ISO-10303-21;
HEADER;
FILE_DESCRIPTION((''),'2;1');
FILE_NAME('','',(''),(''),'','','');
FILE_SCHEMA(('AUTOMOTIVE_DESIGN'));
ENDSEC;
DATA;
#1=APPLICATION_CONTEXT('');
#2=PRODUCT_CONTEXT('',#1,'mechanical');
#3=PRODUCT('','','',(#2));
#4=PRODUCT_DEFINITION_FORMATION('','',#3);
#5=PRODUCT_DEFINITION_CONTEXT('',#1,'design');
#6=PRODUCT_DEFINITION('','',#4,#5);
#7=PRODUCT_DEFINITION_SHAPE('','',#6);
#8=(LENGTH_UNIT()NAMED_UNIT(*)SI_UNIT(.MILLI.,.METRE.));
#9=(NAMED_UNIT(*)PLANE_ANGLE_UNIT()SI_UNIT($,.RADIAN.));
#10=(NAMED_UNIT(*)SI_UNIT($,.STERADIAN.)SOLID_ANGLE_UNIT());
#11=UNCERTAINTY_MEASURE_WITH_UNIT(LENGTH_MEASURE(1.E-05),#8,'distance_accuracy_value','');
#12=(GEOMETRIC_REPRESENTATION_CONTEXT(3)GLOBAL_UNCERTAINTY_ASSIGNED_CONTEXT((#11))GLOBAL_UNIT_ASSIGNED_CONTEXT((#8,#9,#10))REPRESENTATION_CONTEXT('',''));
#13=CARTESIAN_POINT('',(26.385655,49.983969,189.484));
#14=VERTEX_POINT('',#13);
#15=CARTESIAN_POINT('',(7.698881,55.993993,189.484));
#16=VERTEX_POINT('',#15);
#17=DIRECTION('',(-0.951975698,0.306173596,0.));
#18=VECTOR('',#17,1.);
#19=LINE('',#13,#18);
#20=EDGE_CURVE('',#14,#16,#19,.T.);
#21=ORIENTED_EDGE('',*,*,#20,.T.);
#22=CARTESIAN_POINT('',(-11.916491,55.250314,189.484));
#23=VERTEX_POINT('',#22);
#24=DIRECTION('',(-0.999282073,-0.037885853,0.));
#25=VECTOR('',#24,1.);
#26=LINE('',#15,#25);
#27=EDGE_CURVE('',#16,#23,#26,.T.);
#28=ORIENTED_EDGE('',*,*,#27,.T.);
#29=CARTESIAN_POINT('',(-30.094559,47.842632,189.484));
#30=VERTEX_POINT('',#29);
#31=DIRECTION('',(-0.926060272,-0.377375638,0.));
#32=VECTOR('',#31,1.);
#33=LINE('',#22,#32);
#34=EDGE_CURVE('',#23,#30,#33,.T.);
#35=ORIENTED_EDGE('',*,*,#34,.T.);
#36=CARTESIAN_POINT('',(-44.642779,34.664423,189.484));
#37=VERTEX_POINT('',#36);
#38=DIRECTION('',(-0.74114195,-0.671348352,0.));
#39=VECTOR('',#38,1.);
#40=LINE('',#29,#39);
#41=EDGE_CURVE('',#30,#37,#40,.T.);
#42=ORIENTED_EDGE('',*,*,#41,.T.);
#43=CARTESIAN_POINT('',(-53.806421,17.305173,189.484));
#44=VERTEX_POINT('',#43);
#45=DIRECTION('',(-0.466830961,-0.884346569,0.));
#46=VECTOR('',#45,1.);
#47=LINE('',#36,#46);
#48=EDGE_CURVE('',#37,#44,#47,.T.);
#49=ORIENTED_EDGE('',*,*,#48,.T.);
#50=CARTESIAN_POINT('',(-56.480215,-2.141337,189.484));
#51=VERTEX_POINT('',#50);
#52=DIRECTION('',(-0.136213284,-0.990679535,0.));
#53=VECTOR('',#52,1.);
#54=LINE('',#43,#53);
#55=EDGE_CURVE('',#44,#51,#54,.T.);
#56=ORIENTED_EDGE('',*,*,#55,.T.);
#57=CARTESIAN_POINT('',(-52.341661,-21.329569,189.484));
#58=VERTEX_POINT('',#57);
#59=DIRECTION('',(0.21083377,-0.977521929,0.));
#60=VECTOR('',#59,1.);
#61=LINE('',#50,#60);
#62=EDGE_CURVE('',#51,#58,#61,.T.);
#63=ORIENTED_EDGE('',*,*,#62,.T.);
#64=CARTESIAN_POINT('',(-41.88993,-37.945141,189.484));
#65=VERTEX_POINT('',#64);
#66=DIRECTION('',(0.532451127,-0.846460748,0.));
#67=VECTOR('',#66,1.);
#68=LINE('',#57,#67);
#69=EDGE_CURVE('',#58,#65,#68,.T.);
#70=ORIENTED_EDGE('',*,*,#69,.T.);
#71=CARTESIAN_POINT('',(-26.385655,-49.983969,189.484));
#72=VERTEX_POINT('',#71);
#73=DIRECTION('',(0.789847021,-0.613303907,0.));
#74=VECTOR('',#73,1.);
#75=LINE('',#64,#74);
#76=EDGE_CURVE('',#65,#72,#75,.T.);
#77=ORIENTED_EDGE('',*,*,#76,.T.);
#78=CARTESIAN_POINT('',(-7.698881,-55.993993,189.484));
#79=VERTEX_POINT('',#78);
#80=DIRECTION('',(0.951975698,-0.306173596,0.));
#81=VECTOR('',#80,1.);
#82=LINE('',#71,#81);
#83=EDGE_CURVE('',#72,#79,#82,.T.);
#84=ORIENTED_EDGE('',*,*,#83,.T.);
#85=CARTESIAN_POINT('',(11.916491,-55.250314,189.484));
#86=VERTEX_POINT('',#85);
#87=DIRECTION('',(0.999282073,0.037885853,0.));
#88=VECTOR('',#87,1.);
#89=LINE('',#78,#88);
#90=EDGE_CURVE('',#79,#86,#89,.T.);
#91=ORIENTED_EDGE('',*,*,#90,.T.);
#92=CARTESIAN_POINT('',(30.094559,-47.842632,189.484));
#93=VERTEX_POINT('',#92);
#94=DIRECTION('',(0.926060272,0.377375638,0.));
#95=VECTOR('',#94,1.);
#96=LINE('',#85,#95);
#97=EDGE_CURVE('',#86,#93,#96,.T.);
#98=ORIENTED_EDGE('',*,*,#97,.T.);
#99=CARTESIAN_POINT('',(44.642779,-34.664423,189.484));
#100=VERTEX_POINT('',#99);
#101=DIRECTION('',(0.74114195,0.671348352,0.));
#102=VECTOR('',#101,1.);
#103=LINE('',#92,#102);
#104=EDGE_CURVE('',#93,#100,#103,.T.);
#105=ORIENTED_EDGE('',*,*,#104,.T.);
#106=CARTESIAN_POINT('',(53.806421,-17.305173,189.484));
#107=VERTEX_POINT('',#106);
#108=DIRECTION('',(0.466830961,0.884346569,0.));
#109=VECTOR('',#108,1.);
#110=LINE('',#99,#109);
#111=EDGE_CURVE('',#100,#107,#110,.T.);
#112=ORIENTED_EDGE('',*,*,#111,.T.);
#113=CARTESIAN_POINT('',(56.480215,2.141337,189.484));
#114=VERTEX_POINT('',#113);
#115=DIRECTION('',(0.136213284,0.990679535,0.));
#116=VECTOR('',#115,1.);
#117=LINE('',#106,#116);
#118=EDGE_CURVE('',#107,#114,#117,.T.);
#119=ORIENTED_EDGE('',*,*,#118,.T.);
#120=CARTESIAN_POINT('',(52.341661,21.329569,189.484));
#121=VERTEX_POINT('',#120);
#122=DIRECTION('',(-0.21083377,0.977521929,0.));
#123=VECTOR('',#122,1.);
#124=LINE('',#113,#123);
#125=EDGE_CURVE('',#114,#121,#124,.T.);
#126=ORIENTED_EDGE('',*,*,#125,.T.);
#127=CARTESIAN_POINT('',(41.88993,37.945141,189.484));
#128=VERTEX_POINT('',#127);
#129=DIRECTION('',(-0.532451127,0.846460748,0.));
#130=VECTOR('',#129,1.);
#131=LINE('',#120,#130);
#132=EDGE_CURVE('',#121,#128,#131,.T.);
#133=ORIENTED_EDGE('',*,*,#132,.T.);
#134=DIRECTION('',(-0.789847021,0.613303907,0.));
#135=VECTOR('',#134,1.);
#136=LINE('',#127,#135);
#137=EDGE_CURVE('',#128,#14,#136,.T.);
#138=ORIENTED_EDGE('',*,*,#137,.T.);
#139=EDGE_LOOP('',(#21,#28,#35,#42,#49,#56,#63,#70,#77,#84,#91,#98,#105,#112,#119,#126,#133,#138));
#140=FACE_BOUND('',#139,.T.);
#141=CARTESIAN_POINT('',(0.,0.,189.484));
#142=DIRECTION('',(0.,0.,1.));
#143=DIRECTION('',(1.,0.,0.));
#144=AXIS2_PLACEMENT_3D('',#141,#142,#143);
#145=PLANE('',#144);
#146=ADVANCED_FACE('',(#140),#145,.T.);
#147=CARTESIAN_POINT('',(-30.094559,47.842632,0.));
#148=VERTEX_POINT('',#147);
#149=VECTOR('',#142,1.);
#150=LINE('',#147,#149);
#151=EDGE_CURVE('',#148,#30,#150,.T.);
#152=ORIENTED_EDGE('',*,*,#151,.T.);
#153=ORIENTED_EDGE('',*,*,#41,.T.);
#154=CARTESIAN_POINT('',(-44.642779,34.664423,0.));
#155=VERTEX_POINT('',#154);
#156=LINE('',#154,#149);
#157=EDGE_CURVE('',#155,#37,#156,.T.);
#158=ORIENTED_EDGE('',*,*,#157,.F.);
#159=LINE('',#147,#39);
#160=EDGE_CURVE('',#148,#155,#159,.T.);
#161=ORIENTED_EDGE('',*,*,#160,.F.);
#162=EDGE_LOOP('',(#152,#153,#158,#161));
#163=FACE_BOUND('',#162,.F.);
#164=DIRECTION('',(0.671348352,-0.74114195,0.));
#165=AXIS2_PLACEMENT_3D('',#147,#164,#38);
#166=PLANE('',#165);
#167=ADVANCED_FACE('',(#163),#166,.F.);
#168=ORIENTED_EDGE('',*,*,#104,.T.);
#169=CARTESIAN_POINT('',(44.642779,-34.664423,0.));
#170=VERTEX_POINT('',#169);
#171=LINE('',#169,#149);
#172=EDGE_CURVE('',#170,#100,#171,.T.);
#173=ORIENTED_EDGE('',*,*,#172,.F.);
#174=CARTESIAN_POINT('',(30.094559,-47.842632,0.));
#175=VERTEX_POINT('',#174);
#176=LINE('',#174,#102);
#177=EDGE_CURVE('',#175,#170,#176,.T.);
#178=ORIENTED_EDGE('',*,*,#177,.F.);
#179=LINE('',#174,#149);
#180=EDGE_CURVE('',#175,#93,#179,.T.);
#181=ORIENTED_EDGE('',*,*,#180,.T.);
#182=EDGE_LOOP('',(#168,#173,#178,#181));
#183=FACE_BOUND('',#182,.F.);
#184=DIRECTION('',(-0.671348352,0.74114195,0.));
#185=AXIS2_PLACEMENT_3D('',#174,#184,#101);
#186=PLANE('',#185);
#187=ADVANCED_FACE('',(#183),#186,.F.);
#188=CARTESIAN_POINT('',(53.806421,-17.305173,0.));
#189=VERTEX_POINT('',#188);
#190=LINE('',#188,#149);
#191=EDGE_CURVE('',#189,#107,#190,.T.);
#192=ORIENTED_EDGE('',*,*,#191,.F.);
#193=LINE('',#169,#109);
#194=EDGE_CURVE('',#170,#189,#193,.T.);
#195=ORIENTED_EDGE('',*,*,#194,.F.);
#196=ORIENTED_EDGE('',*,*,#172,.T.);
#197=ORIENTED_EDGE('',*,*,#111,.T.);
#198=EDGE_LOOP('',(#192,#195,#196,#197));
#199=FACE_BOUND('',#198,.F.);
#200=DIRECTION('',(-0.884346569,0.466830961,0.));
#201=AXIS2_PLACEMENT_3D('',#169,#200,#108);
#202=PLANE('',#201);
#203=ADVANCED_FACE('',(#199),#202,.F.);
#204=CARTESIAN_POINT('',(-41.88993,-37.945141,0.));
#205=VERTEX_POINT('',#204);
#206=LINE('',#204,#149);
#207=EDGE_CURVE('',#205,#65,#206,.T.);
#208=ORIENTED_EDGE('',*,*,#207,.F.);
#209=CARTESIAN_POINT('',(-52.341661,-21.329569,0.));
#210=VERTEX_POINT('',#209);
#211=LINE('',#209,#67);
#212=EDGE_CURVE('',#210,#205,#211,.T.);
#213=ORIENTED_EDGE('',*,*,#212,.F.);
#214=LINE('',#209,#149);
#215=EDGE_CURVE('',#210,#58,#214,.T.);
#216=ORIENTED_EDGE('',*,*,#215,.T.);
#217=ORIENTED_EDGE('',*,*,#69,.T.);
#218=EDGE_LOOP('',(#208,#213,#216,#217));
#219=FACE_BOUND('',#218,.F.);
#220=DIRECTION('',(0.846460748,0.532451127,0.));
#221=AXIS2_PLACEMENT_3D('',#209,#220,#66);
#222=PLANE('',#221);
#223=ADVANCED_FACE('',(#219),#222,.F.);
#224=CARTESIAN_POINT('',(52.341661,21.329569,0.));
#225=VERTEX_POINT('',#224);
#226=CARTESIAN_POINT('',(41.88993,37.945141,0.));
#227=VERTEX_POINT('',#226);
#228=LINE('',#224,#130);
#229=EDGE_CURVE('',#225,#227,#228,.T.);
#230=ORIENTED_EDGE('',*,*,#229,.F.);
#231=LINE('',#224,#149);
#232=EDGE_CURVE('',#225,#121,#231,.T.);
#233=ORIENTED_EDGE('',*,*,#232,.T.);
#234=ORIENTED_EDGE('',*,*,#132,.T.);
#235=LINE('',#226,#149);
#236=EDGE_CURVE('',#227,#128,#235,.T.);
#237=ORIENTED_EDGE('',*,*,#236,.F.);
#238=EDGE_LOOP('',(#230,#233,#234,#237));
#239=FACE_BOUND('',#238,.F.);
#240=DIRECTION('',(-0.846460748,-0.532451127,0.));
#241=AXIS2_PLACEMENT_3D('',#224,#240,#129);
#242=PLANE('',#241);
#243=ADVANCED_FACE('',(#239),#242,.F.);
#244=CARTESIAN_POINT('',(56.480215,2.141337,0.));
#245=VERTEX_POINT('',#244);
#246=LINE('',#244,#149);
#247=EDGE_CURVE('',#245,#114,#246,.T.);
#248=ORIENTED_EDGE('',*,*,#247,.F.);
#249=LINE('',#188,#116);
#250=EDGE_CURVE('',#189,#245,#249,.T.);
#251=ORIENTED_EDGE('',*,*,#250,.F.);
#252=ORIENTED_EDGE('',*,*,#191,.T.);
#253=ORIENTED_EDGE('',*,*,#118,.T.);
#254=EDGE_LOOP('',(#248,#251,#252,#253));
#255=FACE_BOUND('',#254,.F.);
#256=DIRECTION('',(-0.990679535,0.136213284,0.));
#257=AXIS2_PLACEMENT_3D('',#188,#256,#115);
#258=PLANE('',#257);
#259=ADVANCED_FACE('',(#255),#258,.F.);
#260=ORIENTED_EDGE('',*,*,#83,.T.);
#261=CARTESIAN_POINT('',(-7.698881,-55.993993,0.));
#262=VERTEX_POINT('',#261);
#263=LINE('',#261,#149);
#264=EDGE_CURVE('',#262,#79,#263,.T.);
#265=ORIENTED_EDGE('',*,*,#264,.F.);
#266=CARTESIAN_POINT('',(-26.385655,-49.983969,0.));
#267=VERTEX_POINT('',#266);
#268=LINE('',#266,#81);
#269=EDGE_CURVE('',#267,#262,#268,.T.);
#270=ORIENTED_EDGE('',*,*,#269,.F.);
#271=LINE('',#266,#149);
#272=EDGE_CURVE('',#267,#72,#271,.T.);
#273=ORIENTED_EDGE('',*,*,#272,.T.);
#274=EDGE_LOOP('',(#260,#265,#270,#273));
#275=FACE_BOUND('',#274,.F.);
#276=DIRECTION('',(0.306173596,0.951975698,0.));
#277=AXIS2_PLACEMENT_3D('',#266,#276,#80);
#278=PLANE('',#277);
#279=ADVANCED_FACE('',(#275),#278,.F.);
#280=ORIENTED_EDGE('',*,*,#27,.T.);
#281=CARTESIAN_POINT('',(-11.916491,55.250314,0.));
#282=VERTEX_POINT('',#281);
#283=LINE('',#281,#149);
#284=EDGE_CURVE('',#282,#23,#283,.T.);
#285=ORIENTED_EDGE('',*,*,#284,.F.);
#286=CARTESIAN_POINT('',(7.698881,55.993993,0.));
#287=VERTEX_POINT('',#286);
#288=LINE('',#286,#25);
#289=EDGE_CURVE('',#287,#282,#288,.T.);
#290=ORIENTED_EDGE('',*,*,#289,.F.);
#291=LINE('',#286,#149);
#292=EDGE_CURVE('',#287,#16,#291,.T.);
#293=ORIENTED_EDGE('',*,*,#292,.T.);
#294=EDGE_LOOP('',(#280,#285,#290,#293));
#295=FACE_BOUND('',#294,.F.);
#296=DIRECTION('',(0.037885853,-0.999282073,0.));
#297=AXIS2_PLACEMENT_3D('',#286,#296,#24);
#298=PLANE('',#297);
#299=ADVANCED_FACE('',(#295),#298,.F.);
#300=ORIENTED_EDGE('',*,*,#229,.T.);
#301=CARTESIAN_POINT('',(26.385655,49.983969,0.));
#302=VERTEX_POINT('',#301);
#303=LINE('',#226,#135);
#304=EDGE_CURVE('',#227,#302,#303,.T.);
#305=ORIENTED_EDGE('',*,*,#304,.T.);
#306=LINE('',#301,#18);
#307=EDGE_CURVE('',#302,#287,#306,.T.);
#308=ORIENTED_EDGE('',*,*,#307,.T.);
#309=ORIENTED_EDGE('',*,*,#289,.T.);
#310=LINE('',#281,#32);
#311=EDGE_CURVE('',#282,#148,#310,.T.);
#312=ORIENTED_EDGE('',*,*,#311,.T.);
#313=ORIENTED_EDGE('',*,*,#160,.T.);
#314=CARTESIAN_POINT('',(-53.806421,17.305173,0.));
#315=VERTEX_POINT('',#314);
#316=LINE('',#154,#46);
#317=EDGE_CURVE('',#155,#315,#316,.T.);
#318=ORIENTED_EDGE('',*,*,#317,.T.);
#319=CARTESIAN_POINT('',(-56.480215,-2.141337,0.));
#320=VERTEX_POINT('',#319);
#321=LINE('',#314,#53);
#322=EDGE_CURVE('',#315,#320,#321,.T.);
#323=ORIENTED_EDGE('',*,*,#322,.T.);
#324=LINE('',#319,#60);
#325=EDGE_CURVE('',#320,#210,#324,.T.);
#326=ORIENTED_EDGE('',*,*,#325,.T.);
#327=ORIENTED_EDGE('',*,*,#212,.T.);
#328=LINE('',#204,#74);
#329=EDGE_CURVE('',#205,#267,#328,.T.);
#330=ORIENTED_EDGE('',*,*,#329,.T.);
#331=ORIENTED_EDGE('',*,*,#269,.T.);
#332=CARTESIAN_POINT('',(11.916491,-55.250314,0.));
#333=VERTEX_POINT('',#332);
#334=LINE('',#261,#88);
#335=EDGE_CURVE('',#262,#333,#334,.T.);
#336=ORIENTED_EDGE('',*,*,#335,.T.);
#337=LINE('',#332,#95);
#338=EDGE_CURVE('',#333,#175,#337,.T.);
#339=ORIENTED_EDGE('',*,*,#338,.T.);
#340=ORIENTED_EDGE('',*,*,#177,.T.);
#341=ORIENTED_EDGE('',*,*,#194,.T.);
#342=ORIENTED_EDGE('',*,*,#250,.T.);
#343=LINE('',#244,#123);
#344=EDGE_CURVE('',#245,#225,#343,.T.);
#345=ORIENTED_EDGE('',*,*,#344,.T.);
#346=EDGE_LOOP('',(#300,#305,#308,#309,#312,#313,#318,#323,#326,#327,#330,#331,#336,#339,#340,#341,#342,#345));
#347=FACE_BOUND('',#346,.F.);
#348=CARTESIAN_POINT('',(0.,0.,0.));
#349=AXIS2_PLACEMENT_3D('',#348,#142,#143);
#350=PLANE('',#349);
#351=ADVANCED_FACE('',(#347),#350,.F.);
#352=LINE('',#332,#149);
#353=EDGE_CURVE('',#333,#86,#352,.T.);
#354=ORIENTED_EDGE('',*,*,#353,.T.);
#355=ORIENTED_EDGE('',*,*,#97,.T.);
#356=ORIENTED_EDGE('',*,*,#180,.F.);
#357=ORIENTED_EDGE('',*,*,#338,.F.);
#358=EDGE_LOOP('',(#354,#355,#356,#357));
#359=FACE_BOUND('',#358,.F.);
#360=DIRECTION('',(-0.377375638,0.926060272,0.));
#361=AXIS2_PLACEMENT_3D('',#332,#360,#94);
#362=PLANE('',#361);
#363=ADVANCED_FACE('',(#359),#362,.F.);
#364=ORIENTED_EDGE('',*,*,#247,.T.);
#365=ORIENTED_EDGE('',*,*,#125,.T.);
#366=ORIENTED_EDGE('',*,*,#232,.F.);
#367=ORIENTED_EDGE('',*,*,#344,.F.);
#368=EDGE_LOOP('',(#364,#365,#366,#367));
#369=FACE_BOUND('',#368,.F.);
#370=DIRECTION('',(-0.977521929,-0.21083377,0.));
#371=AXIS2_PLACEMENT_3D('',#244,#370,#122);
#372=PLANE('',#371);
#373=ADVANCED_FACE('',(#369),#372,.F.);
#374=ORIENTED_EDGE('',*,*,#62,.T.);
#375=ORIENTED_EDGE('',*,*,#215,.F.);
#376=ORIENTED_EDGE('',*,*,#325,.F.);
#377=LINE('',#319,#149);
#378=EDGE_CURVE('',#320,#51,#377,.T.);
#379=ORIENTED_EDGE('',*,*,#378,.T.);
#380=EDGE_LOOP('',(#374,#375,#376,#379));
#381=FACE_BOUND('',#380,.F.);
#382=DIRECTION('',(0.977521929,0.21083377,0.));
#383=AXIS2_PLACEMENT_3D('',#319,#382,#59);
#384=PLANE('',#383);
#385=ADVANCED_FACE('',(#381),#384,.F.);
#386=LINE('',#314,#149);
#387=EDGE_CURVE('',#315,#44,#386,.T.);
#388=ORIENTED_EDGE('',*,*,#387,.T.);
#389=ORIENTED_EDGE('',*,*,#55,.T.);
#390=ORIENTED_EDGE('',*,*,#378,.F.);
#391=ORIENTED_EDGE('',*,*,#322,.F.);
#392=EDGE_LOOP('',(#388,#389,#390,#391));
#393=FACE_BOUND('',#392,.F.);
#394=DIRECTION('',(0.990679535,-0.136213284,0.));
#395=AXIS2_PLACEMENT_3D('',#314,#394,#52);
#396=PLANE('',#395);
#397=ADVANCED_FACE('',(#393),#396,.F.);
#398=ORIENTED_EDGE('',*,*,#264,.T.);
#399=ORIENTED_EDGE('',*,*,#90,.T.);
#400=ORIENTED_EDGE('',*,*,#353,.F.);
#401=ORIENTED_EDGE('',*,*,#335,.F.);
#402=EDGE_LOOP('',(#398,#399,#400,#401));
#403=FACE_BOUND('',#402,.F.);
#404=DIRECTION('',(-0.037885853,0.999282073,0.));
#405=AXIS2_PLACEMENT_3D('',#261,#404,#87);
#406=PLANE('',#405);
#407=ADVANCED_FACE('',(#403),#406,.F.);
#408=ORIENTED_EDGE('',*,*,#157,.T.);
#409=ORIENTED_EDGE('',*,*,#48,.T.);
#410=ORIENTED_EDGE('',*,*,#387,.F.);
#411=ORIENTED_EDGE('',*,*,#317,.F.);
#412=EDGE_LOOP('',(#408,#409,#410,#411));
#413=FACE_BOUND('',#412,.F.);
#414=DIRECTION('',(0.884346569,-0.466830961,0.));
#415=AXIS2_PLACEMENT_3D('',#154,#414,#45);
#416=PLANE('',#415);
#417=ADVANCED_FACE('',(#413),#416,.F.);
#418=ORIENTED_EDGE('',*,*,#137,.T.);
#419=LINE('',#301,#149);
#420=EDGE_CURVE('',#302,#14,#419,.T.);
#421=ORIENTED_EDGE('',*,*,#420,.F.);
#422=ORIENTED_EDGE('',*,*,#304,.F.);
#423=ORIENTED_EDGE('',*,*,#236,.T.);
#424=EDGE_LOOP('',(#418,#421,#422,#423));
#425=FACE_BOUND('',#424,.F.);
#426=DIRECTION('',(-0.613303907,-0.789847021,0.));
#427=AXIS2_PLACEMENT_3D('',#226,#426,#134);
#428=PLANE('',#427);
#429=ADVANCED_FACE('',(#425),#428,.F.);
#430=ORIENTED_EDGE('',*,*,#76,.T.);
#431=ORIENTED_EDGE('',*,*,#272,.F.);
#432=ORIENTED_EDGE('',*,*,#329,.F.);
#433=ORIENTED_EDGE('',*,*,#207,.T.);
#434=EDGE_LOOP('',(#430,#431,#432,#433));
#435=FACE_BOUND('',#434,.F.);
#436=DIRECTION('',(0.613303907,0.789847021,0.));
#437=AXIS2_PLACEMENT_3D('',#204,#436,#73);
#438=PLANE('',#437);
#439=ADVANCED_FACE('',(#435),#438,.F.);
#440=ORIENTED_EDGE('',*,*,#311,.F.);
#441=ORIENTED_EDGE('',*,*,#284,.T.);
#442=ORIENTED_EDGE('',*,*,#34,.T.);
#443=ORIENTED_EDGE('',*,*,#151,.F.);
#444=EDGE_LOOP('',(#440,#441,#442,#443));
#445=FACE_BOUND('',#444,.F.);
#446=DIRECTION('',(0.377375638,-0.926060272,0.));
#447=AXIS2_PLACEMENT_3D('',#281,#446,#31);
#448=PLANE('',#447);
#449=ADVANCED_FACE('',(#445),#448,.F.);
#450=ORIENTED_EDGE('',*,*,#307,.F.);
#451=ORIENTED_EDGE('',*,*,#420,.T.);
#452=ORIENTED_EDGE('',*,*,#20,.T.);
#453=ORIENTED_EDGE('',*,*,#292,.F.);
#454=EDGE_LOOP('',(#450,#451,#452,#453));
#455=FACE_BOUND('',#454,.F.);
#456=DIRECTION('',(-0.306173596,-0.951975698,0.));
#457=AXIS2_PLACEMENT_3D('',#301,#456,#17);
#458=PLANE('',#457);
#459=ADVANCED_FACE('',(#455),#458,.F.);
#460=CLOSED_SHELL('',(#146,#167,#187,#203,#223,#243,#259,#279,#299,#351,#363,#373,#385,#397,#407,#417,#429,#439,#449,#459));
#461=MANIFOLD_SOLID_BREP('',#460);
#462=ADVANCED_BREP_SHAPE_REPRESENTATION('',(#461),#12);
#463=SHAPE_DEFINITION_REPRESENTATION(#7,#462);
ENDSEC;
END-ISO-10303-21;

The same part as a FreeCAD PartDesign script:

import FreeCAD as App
import Part
import Sketcher
Q = App.Units.Quantity

doc = App.newDocument("Part")
params = doc.addObject("Spreadsheet::Sheet", "Params")
for row, (alias, value) in enumerate([
    ("pad1_length", "7.46 in"),
], start=1):
    params.set(f"A{row}", alias)
    params.set(f"B{row}", "=" + value)
    params.setAlias(f"B{row}", alias)

body = doc.addObject("PartDesign::Body", "Body")

sketch1 = body.newObject("Sketcher::SketchObject", "Sketch")
sketch1.AttachmentSupport = (doc.getObject("XY_Plane"), [""])
sketch1.MapMode = "FlatFace"
sketch1.addGeometry([
    Part.LineSegment(App.Vector(52, 21, 0), App.Vector(42, 38, 0)),
    Part.LineSegment(App.Vector(42, 38, 0), App.Vector(26, 50, 0)),
    Part.LineSegment(App.Vector(26, 50, 0), App.Vector(8, 56, 0)),
    Part.LineSegment(App.Vector(8, 56, 0), App.Vector(-12, 55, 0)),
    Part.LineSegment(App.Vector(-12, 55, 0), App.Vector(-30, 48, 0)),
    Part.LineSegment(App.Vector(-30, 48, 0), App.Vector(-45, 35, 0)),
    Part.LineSegment(App.Vector(-45, 35, 0), App.Vector(-54, 17, 0)),
    Part.LineSegment(App.Vector(-54, 17, 0), App.Vector(-56, -2, 0)),
    Part.LineSegment(App.Vector(-56, -2, 0), App.Vector(-52, -21, 0)),
    Part.LineSegment(App.Vector(-52, -21, 0), App.Vector(-42, -38, 0)),
    Part.LineSegment(App.Vector(-42, -38, 0), App.Vector(-26, -50, 0)),
    Part.LineSegment(App.Vector(-26, -50, 0), App.Vector(-8, -56, 0)),
    Part.LineSegment(App.Vector(-8, -56, 0), App.Vector(12, -55, 0)),
    Part.LineSegment(App.Vector(12, -55, 0), App.Vector(30, -48, 0)),
    Part.LineSegment(App.Vector(30, -48, 0), App.Vector(45, -35, 0)),
    Part.LineSegment(App.Vector(45, -35, 0), App.Vector(54, -17, 0)),
    Part.LineSegment(App.Vector(54, -17, 0), App.Vector(56, 2, 0)),
    Part.LineSegment(App.Vector(56, 2, 0), App.Vector(52, 21, 0)),
], False)
sketch1.addConstraint([
    Sketcher.Constraint("Coincident", 0, 2, 1, 1),
    Sketcher.Constraint("Coincident", 1, 2, 2, 1),
    Sketcher.Constraint("Coincident", 2, 2, 3, 1),
    Sketcher.Constraint("Coincident", 3, 2, 4, 1),
    Sketcher.Constraint("Coincident", 4, 2, 5, 1),
    Sketcher.Constraint("Coincident", 5, 2, 6, 1),
    Sketcher.Constraint("Coincident", 6, 2, 7, 1),
    Sketcher.Constraint("Coincident", 7, 2, 8, 1),
    Sketcher.Constraint("Coincident", 8, 2, 9, 1),
    Sketcher.Constraint("Coincident", 9, 2, 10, 1),
    Sketcher.Constraint("Coincident", 10, 2, 11, 1),
    Sketcher.Constraint("Coincident", 11, 2, 12, 1),
    Sketcher.Constraint("Coincident", 12, 2, 13, 1),
    Sketcher.Constraint("Coincident", 13, 2, 14, 1),
    Sketcher.Constraint("Coincident", 14, 2, 15, 1),
    Sketcher.Constraint("Coincident", 15, 2, 16, 1),
    Sketcher.Constraint("Coincident", 16, 2, 17, 1),
    Sketcher.Constraint("Coincident", 17, 2, 0, 1),
    Sketcher.Constraint("Symmetric", 0, 2, 9, 2, -1, 1),
    Sketcher.Constraint("Symmetric", 1, 2, 10, 2, -1, 1),
    Sketcher.Constraint("Symmetric", 2, 2, 11, 2, -1, 1),
    Sketcher.Constraint("Symmetric", 3, 2, 12, 2, -1, 1),
    Sketcher.Constraint("Symmetric", 4, 2, 13, 2, -1, 1),
    Sketcher.Constraint("Symmetric", 5, 2, 14, 2, -1, 1),
    Sketcher.Constraint("Symmetric", 6, 2, 15, 2, -1, 1),
    Sketcher.Constraint("Symmetric", 7, 2, 16, 2, -1, 1),
    Sketcher.Constraint("Symmetric", 8, 2, 17, 2, -1, 1),
    Sketcher.Constraint("Equal", 0, 1),
    Sketcher.Constraint("Equal", 1, 2),
    Sketcher.Constraint("Equal", 2, 3),
    Sketcher.Constraint("Equal", 3, 4),
    Sketcher.Constraint("Equal", 4, 5),
    Sketcher.Constraint("Equal", 5, 6),
    Sketcher.Constraint("Equal", 6, 7),
    Sketcher.Constraint("Equal", 7, 8),
    Sketcher.Constraint("DistanceY", 8, 2, 4, 2, Q("69.172201 mm")),
    Sketcher.Constraint("DistanceY", 10, 2, 8, 2, Q("28.6544 mm")),
    Sketcher.Constraint("DistanceX", -1, 1, 0, 2, Q("41.88993 mm")),
    Sketcher.Constraint("DistanceY", -1, 1, 0, 2, Q("37.945141 mm")),
    Sketcher.Constraint("DistanceY", -1, 1, 1, 2, Q("49.983969 mm")),
    Sketcher.Constraint("DistanceX", -1, 1, 2, 2, Q("7.698881 mm")),
    Sketcher.Constraint("DistanceX", 3, 2, -1, 1, Q("11.916491 mm")),
    Sketcher.Constraint("DistanceX", 4, 2, -1, 1, Q("30.094559 mm")),
    Sketcher.Constraint("DistanceX", 5, 2, -1, 1, Q("44.642779 mm")),
    Sketcher.Constraint("DistanceX", 6, 2, -1, 1, Q("53.806421 mm")),
])
pad1 = body.newObject("PartDesign::Pad", "Pad")
pad1.Profile = sketch1
pad1.setExpression("Length", "Params.pad1_length")

doc.recompute()
